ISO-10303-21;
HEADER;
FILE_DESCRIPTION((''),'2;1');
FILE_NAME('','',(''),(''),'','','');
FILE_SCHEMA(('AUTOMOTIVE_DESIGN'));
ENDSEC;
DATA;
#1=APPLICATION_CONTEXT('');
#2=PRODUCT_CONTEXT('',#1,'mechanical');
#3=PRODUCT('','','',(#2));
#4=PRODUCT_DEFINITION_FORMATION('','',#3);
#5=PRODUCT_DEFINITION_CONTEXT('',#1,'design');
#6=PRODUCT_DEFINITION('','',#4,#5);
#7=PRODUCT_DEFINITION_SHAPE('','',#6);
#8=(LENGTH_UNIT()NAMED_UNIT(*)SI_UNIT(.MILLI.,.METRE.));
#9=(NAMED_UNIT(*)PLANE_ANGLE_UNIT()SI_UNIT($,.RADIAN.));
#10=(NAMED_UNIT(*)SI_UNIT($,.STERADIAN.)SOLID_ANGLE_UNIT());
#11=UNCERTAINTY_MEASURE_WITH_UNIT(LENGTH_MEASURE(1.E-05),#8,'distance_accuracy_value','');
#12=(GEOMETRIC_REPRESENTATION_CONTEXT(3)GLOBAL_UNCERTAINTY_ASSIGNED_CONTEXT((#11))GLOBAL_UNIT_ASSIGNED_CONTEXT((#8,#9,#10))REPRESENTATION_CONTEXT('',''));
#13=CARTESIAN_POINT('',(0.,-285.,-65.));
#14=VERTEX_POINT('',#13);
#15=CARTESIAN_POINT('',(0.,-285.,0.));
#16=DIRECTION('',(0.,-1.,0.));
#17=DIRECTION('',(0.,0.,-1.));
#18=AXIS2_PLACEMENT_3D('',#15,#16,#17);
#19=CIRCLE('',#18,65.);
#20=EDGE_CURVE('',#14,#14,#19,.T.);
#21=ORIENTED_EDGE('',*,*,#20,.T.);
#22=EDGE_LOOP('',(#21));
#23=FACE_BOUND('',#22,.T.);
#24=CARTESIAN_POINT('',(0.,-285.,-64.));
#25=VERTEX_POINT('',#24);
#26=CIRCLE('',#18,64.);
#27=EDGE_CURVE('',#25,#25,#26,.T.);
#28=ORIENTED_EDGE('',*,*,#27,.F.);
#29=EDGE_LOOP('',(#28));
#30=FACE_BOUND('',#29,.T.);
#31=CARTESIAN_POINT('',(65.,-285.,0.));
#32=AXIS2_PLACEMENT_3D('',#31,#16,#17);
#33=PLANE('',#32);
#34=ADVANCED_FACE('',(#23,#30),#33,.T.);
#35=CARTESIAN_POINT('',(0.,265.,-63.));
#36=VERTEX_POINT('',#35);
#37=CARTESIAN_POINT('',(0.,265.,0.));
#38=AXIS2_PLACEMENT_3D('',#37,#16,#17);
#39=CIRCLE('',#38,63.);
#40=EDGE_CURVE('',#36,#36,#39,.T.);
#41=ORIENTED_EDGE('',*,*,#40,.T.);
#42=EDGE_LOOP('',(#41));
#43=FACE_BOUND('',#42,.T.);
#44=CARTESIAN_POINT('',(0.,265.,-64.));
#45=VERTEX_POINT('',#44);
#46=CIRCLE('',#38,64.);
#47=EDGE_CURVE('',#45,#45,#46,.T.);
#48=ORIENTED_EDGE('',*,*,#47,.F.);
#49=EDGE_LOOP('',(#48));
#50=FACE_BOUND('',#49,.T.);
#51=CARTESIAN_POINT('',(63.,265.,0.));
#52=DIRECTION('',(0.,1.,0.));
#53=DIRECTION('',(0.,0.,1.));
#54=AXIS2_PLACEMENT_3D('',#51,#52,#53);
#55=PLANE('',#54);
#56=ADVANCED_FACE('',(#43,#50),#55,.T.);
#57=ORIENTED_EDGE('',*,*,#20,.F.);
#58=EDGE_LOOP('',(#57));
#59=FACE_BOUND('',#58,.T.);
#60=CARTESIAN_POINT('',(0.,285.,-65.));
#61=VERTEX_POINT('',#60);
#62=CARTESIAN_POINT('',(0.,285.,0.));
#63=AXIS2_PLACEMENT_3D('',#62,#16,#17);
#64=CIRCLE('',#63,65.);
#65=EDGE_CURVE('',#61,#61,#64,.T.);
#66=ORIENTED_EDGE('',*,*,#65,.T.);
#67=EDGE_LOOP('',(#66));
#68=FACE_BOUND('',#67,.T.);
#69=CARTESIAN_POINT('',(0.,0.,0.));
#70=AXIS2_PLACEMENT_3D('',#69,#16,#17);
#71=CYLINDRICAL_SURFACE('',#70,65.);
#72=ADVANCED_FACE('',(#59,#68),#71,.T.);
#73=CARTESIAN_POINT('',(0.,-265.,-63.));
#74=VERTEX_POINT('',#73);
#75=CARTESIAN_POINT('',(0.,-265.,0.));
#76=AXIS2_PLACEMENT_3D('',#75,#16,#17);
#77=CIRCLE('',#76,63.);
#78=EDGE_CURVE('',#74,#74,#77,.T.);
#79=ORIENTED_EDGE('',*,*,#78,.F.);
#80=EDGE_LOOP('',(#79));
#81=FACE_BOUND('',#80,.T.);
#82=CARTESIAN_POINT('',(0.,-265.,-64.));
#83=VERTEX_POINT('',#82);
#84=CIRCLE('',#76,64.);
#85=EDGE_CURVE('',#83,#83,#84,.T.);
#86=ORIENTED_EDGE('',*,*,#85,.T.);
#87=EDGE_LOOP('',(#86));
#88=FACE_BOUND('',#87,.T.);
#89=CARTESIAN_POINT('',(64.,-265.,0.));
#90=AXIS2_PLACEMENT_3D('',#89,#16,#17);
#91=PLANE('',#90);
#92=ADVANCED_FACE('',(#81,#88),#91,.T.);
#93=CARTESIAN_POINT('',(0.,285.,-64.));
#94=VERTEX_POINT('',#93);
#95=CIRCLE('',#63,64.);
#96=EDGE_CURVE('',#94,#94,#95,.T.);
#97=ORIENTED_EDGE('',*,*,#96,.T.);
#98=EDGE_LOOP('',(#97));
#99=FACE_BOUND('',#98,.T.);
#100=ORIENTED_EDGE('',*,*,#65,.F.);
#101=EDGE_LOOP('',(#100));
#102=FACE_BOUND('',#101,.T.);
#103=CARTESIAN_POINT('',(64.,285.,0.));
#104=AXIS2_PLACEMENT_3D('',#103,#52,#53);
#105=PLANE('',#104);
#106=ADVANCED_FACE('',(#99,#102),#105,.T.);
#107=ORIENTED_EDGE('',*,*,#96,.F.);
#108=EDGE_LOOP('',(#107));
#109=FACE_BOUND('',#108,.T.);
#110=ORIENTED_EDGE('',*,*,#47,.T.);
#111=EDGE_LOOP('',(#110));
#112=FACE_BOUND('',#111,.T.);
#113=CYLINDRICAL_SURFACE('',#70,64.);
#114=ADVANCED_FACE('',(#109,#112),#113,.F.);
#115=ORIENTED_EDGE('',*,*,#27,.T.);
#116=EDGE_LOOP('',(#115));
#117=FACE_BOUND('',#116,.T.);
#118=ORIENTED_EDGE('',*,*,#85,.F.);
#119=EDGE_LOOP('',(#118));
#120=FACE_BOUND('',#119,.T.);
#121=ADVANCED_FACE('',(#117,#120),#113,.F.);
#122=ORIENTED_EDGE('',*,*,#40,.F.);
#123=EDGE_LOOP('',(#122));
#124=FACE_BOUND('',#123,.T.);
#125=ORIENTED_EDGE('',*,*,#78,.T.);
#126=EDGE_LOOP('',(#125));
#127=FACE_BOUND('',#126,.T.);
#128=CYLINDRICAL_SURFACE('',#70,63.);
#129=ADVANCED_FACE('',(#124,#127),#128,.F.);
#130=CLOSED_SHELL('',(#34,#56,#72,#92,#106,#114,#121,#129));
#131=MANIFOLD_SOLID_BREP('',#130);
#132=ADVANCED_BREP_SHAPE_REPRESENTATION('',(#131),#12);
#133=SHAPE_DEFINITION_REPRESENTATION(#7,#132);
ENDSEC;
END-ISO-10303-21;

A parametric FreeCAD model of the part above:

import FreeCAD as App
import Part
import Sketcher
Q = App.Units.Quantity


def add_polygon(sketch, points):
    """Adds a closed chain of lines whose ends are joined by coincident constraints."""
    first, n = sketch.GeometryCount, len(points)
    for a, b in zip(points, points[1:] + points[:1]):
        sketch.addGeometry(Part.LineSegment(App.Vector(*a, 0), App.Vector(*b, 0)), False)
    for i in range(n):
        sketch.addConstraint(Sketcher.Constraint("Coincident", first + i, 2, first + (i + 1) % n, 1))

doc = App.newDocument("Part")
body = doc.addObject("PartDesign::Body", "Body")

# Sketch on XY plane
sketch1 = body.newObject("Sketcher::SketchObject", "Sketch")
sketch1.AttachmentSupport = (doc.getObject("XY_Plane"), [""])
sketch1.MapMode = "FlatFace"
add_polygon(sketch1, [(65, 285), (64, 285), (64, 265), (63, 265), (63, -265), (64, -265), (64, -285), (65, -285)])  # lines 0-7
sketch1.addConstraint(Sketcher.Constraint("Horizontal", 0))
sketch1.addConstraint(Sketcher.Constraint("Vertical", 1))
sketch1.addConstraint(Sketcher.Constraint("Horizontal", 2))
sketch1.addConstraint(Sketcher.Constraint("Vertical", 3))
sketch1.addConstraint(Sketcher.Constraint("Horizontal", 4))
sketch1.addConstraint(Sketcher.Constraint("Vertical", 5))
sketch1.addConstraint(Sketcher.Constraint("Horizontal", 6))
sketch1.addConstraint(Sketcher.Constraint("Vertical", 7))
sketch1.addConstraint(Sketcher.Constraint("Symmetric", 1, 2, 4, 2, -1))
sketch1.addConstraint(Sketcher.Constraint("Equal", 0, 2))
sketch1.addConstraint(Sketcher.Constraint("Equal", 1, 5))
sketch1.addConstraint(Sketcher.Constraint("DistanceX", 0, 2, 0, 1, Q("1 mm")))
sketch1.addConstraint(Sketcher.Constraint("DistanceY", 1, 2, 1, 1, Q("20 mm")))
sketch1.addConstraint(Sketcher.Constraint("DistanceY", 3, 2, 3, 1, Q("530 mm")))
sketch1.addConstraint(Sketcher.Constraint("DistanceX", -1, 1, 0, 2, Q("64 mm")))
revolution = body.newObject("PartDesign::Revolution", "Revolution")
revolution.Profile = sketch1
revolution.ReferenceAxis = (sketch1, ["V_Axis"])
revolution.Angle = 360

doc.recompute()
